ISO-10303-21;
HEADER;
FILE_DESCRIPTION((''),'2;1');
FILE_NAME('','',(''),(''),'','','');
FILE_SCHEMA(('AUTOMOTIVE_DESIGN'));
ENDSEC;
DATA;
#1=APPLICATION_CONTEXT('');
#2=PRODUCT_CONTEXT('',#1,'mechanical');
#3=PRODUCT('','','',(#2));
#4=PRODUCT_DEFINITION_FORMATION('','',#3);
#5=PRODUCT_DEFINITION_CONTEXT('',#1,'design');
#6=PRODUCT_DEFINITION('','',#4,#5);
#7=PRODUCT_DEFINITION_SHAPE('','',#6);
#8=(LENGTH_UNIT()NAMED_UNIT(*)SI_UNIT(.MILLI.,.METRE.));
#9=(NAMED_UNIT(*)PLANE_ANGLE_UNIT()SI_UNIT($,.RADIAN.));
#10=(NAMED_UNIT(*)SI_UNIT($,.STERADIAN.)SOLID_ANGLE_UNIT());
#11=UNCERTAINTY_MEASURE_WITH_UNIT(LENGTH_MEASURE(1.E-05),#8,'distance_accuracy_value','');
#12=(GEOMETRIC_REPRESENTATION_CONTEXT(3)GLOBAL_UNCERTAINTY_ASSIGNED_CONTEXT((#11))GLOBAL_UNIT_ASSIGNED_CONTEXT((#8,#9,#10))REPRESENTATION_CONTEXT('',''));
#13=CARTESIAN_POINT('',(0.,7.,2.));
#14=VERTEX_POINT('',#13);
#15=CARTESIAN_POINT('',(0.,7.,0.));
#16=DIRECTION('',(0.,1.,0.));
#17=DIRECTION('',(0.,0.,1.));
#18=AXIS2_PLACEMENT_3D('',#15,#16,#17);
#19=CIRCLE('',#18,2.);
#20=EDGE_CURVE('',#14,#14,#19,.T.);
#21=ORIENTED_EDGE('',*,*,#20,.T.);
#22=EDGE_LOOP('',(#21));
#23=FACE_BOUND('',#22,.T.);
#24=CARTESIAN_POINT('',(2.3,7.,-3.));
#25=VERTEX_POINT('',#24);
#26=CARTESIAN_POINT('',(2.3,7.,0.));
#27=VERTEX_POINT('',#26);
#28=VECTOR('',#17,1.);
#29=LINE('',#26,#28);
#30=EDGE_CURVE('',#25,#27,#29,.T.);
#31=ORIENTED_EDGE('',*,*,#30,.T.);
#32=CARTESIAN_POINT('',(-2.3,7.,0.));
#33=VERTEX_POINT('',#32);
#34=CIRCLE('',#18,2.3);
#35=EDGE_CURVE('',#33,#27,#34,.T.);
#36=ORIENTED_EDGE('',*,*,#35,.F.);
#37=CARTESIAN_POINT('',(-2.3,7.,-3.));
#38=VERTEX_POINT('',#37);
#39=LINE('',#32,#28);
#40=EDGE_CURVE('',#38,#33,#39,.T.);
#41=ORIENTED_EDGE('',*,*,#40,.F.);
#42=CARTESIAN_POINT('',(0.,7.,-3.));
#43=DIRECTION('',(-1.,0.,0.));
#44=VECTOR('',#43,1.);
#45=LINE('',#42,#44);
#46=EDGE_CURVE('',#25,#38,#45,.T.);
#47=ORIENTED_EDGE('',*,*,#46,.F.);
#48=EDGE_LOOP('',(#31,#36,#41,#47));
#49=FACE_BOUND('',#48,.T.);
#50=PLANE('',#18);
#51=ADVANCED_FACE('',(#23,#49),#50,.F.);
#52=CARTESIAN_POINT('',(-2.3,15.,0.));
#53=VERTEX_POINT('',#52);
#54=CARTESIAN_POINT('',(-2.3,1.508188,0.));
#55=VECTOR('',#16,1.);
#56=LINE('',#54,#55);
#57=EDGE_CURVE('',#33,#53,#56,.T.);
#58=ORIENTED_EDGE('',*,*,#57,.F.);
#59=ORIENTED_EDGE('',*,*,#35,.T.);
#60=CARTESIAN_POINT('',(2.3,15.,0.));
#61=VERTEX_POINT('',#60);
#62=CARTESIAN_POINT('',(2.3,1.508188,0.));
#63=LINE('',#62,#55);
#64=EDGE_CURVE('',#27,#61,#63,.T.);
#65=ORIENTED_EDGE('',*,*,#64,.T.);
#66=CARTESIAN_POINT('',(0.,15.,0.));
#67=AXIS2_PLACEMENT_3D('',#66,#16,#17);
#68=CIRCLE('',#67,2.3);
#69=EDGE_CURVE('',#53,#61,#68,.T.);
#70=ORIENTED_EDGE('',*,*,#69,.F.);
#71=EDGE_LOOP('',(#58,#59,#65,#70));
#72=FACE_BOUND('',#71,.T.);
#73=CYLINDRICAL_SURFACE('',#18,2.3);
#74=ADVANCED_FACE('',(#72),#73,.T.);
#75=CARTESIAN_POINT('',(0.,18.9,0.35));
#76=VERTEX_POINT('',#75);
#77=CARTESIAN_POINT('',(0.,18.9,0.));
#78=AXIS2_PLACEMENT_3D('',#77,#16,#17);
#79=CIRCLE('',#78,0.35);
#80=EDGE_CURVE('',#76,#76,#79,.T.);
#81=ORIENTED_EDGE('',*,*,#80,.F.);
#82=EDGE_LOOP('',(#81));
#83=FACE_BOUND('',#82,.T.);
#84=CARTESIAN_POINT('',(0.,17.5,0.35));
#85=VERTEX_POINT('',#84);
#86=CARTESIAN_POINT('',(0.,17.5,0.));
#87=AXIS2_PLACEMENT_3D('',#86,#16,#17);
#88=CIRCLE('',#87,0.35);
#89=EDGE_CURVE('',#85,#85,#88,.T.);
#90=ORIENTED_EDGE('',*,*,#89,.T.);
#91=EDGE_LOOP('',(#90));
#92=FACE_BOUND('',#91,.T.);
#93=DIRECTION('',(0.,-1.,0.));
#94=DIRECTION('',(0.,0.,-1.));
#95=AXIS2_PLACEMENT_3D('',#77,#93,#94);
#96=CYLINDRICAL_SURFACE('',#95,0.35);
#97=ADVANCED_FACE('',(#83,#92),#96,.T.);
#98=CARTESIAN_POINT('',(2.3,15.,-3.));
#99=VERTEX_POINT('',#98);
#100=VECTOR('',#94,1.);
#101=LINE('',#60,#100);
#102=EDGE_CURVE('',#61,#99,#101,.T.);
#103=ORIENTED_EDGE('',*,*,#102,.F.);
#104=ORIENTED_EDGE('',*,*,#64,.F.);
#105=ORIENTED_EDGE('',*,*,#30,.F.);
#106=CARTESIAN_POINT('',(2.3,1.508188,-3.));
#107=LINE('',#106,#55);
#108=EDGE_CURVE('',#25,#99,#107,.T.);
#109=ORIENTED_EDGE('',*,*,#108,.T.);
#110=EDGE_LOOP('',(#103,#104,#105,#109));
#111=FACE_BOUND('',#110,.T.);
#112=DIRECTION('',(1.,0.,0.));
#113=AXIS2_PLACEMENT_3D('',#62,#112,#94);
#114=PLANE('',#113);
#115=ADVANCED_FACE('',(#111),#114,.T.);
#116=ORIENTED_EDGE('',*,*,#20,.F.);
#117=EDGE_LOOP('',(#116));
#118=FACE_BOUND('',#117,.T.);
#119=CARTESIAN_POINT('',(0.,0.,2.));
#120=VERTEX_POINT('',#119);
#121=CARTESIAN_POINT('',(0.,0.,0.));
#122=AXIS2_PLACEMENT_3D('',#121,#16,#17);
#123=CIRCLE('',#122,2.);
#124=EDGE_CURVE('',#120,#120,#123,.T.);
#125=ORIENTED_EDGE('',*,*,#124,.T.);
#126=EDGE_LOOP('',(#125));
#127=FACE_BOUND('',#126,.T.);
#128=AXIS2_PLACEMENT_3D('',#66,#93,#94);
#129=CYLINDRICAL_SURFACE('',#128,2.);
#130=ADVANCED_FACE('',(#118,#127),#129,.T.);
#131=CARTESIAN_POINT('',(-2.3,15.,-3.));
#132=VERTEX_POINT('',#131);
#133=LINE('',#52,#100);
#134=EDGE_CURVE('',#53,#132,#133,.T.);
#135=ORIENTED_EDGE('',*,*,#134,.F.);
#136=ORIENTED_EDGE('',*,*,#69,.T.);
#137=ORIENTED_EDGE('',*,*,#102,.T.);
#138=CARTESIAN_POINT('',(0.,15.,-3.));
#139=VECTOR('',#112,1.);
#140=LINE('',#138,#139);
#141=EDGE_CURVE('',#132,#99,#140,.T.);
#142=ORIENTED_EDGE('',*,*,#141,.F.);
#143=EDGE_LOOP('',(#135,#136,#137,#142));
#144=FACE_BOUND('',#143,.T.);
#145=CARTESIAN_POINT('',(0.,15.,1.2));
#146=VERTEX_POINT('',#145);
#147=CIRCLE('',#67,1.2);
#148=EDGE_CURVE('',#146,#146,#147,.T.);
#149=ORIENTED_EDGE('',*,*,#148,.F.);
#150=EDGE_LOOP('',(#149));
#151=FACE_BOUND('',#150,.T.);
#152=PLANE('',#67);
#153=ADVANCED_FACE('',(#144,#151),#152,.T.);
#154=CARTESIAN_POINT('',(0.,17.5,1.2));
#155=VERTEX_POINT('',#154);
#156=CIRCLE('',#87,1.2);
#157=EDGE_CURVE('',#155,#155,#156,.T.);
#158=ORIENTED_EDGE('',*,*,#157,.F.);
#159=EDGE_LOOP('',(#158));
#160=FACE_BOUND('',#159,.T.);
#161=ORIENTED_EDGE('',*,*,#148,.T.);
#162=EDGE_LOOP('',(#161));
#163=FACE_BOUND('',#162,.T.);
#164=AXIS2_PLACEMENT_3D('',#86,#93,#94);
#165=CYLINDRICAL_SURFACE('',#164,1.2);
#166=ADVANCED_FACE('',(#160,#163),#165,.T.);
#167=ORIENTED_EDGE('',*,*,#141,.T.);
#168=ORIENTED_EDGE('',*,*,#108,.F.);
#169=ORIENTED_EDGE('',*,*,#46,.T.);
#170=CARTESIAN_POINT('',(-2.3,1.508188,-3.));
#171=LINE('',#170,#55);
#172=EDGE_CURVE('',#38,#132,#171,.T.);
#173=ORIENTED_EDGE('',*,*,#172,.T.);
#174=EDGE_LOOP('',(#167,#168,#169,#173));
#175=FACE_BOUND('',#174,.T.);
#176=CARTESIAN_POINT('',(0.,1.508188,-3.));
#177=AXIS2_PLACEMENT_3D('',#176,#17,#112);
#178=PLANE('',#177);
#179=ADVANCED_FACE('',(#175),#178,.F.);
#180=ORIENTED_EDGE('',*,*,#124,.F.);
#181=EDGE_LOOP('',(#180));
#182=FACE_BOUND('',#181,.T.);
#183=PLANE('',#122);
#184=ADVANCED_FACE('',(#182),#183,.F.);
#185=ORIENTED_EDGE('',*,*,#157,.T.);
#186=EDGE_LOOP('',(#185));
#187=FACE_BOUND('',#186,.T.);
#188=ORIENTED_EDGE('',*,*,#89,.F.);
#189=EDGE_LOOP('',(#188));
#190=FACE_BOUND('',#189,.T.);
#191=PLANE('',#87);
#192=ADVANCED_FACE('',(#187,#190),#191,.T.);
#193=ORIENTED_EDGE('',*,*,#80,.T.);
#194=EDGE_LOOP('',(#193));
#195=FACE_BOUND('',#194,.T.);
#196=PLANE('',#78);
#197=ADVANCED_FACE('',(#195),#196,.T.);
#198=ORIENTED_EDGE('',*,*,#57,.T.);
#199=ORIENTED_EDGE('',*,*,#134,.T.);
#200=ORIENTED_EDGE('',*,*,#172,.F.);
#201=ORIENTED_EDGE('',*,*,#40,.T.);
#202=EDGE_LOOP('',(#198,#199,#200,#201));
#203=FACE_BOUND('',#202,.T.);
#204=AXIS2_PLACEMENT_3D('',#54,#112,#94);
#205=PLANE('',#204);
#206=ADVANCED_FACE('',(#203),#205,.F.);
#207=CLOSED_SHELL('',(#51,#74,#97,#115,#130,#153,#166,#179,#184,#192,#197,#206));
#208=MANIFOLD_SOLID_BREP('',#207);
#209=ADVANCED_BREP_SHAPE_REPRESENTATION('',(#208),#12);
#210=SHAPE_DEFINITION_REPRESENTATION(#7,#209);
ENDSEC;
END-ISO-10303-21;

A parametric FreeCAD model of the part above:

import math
import FreeCAD as App
import Part
import Sketcher

V = App.Vector
Q = App.Units.Quantity

doc = App.newDocument("Part")
body = doc.addObject("PartDesign::Body", "Body")

sketch1 = body.newObject("Sketcher::SketchObject", "Sketch")
sketch1.AttachmentSupport = (doc.getObject("XZ_Plane"), [""])
sketch1.MapMode = "FlatFace"
sketch1.addGeometry(Part.Circle(V(0, 0, 0), V(0, 0, 1), 2), False)
sketch1.addConstraint([
    Sketcher.Constraint("Coincident", 0, 3, -1, 1),
    Sketcher.Constraint("Diameter", 0, Q("4 mm")),
])
pad1 = body.newObject("PartDesign::Pad", "Pad")
pad1.Profile = sketch1
pad1.Length = 15
pad1.Reversed = True

sketch2 = body.newObject("Sketcher::SketchObject", "Sketch001")
sketch2.AttachmentSupport = (doc.getObject("XZ_Plane"), [""])
sketch2.MapMode = "FlatFace"
sketch2.AttachmentOffset = App.Placement(V(0, 0, -15), App.Rotation())
sketch2.addGeometry(Part.Circle(V(0, 0, 0), V(0, 0, 1), 1.2), False)
sketch2.addConstraint([
    Sketcher.Constraint("Coincident", 0, 3, -1, 1),
    Sketcher.Constraint("Diameter", 0, Q("2.4 mm")),
])
pad2 = body.newObject("PartDesign::Pad", "Pad001")
pad2.Profile = sketch2
pad2.Length = 2.5
pad2.Reversed = True

sketch3 = body.newObject("Sketcher::SketchObject", "Sketch002")
sketch3.AttachmentSupport = (doc.getObject("XZ_Plane"), [""])
sketch3.MapMode = "FlatFace"
sketch3.AttachmentOffset = App.Placement(V(0, 0, -17.5), App.Rotation())
sketch3.addGeometry(Part.Circle(V(0, 0, 0), V(0, 0, 1), 0.35), False)
sketch3.addConstraint([
    Sketcher.Constraint("Coincident", 0, 3, -1, 1),
    Sketcher.Constraint("Diameter", 0, Q("0.7 mm")),
])
pad3 = body.newObject("PartDesign::Pad", "Pad002")
pad3.Profile = sketch3
pad3.Length = 1.4
pad3.Reversed = True

sketch4 = body.newObject("Sketcher::SketchObject", "Sketch003")
sketch4.AttachmentSupport = (doc.getObject("XZ_Plane"), [""])
sketch4.MapMode = "FlatFace"
sketch4.AttachmentOffset = App.Placement(V(0, 0, -15), App.Rotation())
sketch4.addGeometry([
    Part.Circle(V(0, 0, 0), V(0, 0, 1), 2.3),
    Part.Circle(V(0, 0, 0), V(0, 0, 1), 2),
], False)
sketch4.addConstraint([
    Sketcher.Constraint("Coincident", 0, 3, -1, 1),
    Sketcher.Constraint("Coincident", 1, 3, -1, 1),
    Sketcher.Constraint("Diameter", 1, Q("4 mm")),
    Sketcher.Constraint("Diameter", 0, Q("4.6 mm")),
])
pad4 = body.newObject("PartDesign::Pad", "Pad003")
pad4.Profile = sketch4
pad4.Length = 8

sketch5 = body.newObject("Sketcher::SketchObject", "Sketch004")
sketch5.AttachmentSupport = (doc.getObject("XZ_Plane"), [""])
sketch5.MapMode = "FlatFace"
sketch5.AttachmentOffset = App.Placement(V(0, 0, -15), App.Rotation())
sketch5.addGeometry([
    Part.ArcOfCircle(Part.Circle(V(0, 0, 0), V(0, 0, 1), 2.3), math.radians(0), math.radians(180)),
    Part.LineSegment(V(2.3, 0, 0), V(2.3, -3, 0)),
    Part.LineSegment(V(2.3, -3, 0), V(-2.3, -3, 0)),
    Part.LineSegment(V(-2.3, -3, 0), V(-2.3, 0, 0)),
], False)
sketch5.addConstraint([
    Sketcher.Constraint("Tangent", 0, 1, 1, 1),
    Sketcher.Constraint("Coincident", 1, 2, 2, 1),
    Sketcher.Constraint("Coincident", 2, 2, 3, 1),
    Sketcher.Constraint("Tangent", 3, 2, 0, 2),
    Sketcher.Constraint("Vertical", 1),
    Sketcher.Constraint("Horizontal", 2),
    Sketcher.Constraint("Vertical", 3),
    Sketcher.Constraint("Coincident", 0, 3, -1, 1),
    Sketcher.Constraint("Radius", 0, Q("2.3 mm")),
    Sketcher.Constraint("DistanceY", 1, 2, 1, 1, Q("3 mm")),
])
pad5 = body.newObject("PartDesign::Pad", "Pad004")
pad5.Profile = sketch5
pad5.Length = 8

doc.recompute()
